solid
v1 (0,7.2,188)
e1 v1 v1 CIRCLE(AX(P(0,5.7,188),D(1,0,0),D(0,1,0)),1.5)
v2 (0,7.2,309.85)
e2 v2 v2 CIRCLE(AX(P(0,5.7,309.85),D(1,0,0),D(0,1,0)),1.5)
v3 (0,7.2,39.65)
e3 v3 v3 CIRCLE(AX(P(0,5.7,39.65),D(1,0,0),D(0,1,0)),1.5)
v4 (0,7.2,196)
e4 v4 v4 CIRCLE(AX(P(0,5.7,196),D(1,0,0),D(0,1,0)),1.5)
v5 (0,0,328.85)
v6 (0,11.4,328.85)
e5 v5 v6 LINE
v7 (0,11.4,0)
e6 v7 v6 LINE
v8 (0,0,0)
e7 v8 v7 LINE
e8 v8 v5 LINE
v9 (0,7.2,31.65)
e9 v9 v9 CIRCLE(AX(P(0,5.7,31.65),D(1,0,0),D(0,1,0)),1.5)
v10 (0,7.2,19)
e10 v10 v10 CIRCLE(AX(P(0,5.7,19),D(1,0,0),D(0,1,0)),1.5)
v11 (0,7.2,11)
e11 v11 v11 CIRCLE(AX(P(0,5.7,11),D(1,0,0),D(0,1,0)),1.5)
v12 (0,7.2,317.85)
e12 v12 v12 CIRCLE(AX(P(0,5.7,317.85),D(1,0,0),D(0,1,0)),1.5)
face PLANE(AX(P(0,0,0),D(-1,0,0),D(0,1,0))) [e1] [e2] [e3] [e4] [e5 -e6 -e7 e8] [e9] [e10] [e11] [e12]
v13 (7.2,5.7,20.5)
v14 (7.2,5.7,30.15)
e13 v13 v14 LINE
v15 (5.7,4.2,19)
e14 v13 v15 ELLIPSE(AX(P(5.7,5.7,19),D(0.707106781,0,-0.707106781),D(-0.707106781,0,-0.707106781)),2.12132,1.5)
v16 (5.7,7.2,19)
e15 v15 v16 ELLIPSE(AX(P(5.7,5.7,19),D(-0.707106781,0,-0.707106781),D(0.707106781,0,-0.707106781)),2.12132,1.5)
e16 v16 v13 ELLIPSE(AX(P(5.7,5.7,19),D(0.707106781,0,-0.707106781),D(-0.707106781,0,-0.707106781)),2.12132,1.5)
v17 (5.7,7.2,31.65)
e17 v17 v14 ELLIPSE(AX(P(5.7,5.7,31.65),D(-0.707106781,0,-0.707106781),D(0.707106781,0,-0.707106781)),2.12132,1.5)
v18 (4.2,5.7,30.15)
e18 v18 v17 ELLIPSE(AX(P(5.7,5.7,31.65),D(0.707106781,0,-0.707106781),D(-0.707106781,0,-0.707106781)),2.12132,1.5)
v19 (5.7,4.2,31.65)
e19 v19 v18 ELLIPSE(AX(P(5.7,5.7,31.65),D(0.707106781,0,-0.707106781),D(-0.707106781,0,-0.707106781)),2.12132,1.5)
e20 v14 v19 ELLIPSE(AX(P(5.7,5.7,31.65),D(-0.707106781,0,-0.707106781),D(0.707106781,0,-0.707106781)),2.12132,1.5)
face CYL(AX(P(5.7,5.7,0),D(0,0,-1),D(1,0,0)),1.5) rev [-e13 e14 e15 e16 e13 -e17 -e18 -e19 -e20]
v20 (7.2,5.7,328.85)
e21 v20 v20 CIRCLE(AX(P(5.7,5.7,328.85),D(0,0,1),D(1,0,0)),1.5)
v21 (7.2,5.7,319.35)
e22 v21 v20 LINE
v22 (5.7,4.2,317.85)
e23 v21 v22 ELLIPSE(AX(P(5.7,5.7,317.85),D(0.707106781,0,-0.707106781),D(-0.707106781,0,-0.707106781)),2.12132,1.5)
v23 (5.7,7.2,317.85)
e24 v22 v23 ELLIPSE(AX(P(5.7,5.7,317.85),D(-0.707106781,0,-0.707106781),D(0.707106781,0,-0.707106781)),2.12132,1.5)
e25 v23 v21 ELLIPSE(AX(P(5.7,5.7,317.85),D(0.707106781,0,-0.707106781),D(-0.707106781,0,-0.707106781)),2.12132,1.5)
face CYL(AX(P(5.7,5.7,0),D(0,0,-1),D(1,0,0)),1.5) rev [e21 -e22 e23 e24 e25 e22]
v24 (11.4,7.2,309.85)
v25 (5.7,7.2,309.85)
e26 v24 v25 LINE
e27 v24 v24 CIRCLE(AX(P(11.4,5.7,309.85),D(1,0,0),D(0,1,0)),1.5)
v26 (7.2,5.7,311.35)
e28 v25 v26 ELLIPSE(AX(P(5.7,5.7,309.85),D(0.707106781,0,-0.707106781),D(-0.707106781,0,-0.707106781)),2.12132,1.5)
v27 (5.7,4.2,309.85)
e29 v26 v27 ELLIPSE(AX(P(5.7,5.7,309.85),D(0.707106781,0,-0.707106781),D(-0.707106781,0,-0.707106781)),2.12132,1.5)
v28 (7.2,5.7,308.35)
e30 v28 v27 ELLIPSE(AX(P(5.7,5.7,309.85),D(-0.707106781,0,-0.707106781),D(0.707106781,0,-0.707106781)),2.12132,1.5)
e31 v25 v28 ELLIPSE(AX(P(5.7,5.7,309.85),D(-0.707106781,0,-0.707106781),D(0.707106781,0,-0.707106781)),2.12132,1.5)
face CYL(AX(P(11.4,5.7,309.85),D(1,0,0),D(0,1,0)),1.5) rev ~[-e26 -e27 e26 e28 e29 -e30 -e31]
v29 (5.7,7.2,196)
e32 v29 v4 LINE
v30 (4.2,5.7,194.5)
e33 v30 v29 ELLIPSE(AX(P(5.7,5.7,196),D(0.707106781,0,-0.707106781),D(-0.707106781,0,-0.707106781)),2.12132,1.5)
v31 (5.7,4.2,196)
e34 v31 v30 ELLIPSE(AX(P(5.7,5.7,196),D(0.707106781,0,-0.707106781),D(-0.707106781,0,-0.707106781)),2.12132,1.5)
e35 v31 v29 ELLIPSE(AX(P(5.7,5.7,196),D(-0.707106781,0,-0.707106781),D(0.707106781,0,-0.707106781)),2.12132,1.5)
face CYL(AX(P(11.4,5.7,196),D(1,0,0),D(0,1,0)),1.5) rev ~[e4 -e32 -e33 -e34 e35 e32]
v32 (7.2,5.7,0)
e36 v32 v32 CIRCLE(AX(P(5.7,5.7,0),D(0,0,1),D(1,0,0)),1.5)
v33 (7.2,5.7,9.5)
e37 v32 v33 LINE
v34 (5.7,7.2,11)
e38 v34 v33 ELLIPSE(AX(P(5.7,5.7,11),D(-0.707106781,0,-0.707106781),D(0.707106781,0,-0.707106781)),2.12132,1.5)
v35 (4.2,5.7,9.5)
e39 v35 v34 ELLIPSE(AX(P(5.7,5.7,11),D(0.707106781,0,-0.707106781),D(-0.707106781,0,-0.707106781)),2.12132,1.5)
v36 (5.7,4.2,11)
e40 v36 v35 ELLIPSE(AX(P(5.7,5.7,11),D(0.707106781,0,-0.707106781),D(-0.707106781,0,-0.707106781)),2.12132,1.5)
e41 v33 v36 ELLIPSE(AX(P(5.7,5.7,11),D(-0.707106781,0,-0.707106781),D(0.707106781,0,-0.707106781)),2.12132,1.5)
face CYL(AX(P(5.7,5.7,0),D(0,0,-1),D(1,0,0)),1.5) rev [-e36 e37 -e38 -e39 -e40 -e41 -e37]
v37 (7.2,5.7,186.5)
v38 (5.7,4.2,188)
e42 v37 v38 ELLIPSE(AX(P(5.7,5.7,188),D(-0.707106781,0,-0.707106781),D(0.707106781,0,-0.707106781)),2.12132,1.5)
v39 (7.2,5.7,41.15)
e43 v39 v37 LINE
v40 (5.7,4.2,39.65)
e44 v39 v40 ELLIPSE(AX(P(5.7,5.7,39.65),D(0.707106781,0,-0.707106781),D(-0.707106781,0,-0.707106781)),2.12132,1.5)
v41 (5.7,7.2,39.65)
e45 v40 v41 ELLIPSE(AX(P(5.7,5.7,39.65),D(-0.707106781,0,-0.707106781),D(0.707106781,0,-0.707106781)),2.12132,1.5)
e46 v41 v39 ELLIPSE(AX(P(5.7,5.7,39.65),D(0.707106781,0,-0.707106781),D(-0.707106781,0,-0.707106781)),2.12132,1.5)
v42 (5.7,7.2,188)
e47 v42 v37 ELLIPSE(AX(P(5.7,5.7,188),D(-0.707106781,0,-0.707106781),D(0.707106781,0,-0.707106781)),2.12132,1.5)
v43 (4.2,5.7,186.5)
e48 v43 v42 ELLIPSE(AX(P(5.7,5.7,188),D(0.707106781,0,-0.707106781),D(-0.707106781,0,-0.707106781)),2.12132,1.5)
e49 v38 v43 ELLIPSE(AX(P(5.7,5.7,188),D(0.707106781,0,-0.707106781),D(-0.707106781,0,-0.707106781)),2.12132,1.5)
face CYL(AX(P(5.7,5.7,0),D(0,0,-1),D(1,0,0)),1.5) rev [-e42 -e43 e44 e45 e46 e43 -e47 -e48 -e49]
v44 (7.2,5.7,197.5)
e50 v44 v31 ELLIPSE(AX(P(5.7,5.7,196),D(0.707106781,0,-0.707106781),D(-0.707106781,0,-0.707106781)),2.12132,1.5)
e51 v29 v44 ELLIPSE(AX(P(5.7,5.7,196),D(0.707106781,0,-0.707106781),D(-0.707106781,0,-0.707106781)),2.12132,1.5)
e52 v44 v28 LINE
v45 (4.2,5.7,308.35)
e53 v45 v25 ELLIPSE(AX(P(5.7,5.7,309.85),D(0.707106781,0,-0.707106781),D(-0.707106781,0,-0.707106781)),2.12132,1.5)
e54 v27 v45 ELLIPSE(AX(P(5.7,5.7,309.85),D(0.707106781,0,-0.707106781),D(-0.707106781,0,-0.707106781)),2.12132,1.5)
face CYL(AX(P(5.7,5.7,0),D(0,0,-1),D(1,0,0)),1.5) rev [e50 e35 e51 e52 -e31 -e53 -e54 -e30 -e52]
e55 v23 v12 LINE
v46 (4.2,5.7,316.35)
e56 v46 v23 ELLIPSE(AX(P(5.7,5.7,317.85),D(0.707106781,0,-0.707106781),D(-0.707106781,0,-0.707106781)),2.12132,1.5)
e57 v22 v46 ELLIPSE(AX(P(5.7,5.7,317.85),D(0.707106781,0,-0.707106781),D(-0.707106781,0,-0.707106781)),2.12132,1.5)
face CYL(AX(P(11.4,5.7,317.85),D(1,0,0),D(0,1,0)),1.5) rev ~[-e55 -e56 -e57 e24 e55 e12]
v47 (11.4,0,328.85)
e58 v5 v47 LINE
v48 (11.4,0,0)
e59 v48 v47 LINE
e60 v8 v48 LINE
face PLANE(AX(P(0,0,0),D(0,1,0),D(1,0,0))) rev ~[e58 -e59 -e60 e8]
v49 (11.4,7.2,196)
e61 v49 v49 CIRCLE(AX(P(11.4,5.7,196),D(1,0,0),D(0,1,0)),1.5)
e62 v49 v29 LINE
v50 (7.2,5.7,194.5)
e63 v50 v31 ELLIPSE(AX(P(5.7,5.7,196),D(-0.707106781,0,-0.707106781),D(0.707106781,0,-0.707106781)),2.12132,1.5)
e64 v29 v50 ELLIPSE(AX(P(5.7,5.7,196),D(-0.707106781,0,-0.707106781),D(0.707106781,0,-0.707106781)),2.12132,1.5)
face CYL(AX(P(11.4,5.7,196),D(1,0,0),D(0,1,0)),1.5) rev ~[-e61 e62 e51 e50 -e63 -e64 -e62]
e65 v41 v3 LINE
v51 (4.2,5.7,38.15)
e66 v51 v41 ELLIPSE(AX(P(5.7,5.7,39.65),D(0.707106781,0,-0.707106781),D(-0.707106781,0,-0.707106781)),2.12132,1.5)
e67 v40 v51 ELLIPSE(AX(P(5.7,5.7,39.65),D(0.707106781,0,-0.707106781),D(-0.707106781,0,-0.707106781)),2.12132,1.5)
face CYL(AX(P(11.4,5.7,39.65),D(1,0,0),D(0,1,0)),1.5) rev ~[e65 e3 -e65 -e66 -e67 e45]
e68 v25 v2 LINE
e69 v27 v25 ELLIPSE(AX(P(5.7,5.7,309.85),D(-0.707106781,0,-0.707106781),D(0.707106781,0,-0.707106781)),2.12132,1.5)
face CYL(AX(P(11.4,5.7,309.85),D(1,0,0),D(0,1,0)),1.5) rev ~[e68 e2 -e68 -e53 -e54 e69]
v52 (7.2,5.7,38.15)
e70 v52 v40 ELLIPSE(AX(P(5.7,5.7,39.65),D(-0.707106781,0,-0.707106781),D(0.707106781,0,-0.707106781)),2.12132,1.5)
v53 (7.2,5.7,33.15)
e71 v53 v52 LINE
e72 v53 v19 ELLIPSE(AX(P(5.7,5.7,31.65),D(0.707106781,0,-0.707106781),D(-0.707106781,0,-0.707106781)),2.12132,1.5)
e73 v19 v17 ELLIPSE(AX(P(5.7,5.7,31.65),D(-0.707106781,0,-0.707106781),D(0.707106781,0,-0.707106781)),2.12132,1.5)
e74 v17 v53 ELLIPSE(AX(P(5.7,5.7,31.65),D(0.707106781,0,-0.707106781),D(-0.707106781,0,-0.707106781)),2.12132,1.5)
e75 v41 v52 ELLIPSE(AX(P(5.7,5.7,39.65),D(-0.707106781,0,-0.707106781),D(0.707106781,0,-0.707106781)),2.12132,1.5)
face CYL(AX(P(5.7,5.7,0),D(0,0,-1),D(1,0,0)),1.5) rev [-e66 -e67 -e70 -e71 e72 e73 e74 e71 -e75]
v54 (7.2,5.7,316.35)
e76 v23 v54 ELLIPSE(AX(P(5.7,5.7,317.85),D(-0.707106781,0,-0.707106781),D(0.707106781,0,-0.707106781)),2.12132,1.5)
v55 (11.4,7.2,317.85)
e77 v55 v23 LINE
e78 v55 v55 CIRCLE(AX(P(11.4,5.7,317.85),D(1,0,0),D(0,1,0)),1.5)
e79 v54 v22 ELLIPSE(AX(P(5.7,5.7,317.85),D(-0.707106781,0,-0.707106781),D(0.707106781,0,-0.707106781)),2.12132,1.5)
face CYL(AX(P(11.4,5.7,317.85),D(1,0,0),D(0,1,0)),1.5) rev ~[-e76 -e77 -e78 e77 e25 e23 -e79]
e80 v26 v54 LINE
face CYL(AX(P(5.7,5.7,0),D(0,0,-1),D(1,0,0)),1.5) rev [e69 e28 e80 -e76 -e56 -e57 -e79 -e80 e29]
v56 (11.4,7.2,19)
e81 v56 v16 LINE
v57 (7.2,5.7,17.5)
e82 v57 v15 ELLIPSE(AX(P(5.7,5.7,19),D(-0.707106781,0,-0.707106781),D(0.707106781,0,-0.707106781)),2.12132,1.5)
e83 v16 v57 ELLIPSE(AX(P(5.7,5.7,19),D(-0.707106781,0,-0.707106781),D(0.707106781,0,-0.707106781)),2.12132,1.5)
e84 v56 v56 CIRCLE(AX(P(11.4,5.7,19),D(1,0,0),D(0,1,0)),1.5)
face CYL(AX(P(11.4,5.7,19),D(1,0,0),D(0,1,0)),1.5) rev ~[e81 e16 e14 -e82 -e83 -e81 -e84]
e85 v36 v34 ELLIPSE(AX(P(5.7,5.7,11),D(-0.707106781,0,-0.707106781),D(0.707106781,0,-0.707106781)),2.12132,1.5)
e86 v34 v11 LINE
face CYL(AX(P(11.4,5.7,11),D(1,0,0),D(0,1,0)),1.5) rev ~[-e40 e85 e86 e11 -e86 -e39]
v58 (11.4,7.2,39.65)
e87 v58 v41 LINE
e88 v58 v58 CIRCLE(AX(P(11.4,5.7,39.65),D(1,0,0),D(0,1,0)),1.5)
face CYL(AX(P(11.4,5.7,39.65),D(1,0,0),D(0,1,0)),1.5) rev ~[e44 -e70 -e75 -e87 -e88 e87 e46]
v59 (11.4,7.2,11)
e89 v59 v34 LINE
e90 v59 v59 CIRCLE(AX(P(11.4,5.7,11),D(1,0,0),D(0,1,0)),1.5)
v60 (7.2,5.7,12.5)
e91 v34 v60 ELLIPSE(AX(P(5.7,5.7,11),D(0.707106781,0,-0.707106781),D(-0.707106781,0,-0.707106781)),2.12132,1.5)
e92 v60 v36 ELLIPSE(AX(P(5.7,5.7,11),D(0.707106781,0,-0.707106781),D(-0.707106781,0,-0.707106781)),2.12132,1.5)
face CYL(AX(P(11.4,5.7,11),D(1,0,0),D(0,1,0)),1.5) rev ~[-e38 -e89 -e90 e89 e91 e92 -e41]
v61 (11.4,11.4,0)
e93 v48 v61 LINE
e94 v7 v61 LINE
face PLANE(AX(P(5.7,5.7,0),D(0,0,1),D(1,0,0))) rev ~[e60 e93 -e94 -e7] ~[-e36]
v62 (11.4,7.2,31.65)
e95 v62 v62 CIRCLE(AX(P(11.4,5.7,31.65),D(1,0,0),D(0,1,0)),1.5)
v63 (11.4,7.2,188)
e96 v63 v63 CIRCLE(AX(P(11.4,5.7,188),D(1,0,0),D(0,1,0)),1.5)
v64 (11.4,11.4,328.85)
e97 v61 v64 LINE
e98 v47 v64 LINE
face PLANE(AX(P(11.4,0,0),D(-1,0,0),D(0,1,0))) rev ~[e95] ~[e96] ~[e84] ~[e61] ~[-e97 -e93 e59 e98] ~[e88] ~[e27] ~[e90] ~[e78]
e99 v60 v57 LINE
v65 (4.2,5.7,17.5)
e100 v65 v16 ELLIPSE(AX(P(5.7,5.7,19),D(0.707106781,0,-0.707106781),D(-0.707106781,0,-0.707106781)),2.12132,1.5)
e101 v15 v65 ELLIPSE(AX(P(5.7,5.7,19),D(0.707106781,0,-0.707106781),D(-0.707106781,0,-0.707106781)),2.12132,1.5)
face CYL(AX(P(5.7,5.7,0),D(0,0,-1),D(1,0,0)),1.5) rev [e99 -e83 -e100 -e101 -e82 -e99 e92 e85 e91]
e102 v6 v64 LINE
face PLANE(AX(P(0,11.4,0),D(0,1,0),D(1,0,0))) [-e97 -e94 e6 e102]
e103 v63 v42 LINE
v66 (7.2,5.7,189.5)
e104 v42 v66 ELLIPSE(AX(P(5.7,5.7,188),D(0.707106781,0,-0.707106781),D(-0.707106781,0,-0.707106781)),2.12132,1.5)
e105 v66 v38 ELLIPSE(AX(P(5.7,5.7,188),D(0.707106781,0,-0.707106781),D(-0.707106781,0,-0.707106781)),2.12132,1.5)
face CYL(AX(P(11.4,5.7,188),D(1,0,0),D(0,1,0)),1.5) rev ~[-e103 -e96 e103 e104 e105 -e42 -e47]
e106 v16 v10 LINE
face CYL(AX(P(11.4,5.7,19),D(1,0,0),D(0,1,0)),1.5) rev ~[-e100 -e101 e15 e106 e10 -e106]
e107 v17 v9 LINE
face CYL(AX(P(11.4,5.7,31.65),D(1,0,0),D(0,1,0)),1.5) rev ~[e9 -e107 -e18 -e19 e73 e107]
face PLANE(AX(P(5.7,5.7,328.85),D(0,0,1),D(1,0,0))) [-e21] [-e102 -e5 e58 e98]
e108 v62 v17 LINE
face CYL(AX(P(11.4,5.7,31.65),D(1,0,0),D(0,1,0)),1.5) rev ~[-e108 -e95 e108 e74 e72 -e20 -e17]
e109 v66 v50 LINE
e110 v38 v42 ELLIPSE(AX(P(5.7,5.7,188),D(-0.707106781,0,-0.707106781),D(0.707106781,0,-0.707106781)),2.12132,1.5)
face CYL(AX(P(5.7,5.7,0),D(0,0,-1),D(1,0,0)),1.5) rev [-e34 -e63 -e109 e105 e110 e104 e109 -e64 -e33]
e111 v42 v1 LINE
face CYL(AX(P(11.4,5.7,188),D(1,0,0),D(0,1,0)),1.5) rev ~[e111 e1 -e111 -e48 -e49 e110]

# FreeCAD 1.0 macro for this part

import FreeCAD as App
import Part
import Sketcher
Q = App.Units.Quantity


def add_polygon(sketch, points):
    """Adds a closed chain of lines whose ends are joined by coincident constraints."""
    first, n = sketch.GeometryCount, len(points)
    for a, b in zip(points, points[1:] + points[:1]):
        sketch.addGeometry(Part.LineSegment(App.Vector(*a, 0), App.Vector(*b, 0)), False)
    for i in range(n):
        sketch.addConstraint(Sketcher.Constraint("Coincident", first + i, 2, first + (i + 1) % n, 1))

doc = App.newDocument("Part")
body = doc.addObject("PartDesign::Body", "Body")

sketch1 = body.newObject("Sketcher::SketchObject", "Sketch")
sketch1.AttachmentSupport = (doc.getObject("XY_Plane"), [""])
sketch1.MapMode = "FlatFace"
add_polygon(sketch1, [(0, 11.4), (0, 0), (11.4, 0), (11.4, 11.4)])
sketch1.addGeometry(Part.Circle(App.Vector(5.7, 5.7, 0), App.Vector(0, 0, 1), 1.5), False)
sketch1.addConstraint(Sketcher.Constraint("Vertical", 0))
sketch1.addConstraint(Sketcher.Constraint("Horizontal", 1))
sketch1.addConstraint(Sketcher.Constraint("Vertical", 2))
sketch1.addConstraint(Sketcher.Constraint("Horizontal", 3))
sketch1.addConstraint(Sketcher.Constraint("Coincident", 0, 2, -1, 1))
sketch1.addConstraint(Sketcher.Constraint("Equal", 3, 0))
sketch1.addConstraint(Sketcher.Constraint("Diameter", 4, Q("3 mm")))
sketch1.addConstraint(Sketcher.Constraint("DistanceX", 1, 1, 1, 2, Q("11.4 mm")))
sketch1.addConstraint(Sketcher.Constraint("DistanceX", -1, 1, 4, 3, Q("5.7 mm")))
sketch1.addConstraint(Sketcher.Constraint("DistanceY", -1, 1, 4, 3, Q("5.7 mm")))
pad1 = body.newObject("PartDesign::Pad", "Pad")
pad1.Profile = sketch1
pad1.Length = 328.85

sketch2 = body.newObject("Sketcher::SketchObject", "Sketch001")
sketch2.AttachmentSupport = (doc.getObject("YZ_Plane"), [""])
sketch2.MapMode = "FlatFace"
sketch2.AttachmentOffset = App.Placement(App.Vector(0, 0, 11.4), App.Rotation())
sketch2.addGeometry(Part.Circle(App.Vector(5.7, 39.6, 0), App.Vector(0, 0, 1), 1.5), False)
sketch2.addGeometry(Part.Circle(App.Vector(5.7, 31.6, 0), App.Vector(0, 0, 1), 1.5), False)
sketch2.addGeometry(Part.Circle(App.Vector(5.7, 19, 0), App.Vector(0, 0, 1), 1.5), False)
sketch2.addGeometry(Part.Circle(App.Vector(5.7, 11, 0), App.Vector(0, 0, 1), 1.5), False)
sketch2.addGeometry(Part.Circle(App.Vector(5.7, 196, 0), App.Vector(0, 0, 1), 1.5), False)
sketch2.addGeometry(Part.Circle(App.Vector(5.7, 188, 0), App.Vector(0, 0, 1), 1.5), False)
sketch2.addGeometry(Part.Circle(App.Vector(5.7, 317.9, 0), App.Vector(0, 0, 1), 1.5), False)
sketch2.addGeometry(Part.Circle(App.Vector(5.7, 309.9, 0), App.Vector(0, 0, 1), 1.5), False)
sketch2.addConstraint(Sketcher.Constraint("Equal", 0, 1))
sketch2.addConstraint(Sketcher.Constraint("Equal", 1, 2))
sketch2.addConstraint(Sketcher.Constraint("Equal", 2, 3))
sketch2.addConstraint(Sketcher.Constraint("Equal", 3, 4))
sketch2.addConstraint(Sketcher.Constraint("Equal", 4, 5))
sketch2.addConstraint(Sketcher.Constraint("Equal", 5, 6))
sketch2.addConstraint(Sketcher.Constraint("Equal", 6, 7))
sketch2.addConstraint(Sketcher.Constraint("Vertical", 0, 3, 1, 3))
sketch2.addConstraint(Sketcher.Constraint("Vertical", 1, 3, 2, 3))
sketch2.addConstraint(Sketcher.Constraint("Vertical", 2, 3, 3, 3))
sketch2.addConstraint(Sketcher.Constraint("Vertical", 3, 3, 4, 3))
sketch2.addConstraint(Sketcher.Constraint("Vertical", 4, 3, 5, 3))
sketch2.addConstraint(Sketcher.Constraint("Vertical", 5, 3, 6, 3))
sketch2.addConstraint(Sketcher.Constraint("Vertical", 6, 3, 7, 3))
sketch2.addConstraint(Sketcher.Constraint("Diameter", 0, Q("3 mm")))
sketch2.addConstraint(Sketcher.Constraint("DistanceY", -1, 1, 2, 3, Q("19 mm")))
sketch2.addConstraint(Sketcher.Constraint("DistanceY", -1, 1, 3, 3, Q("11 mm")))
sketch2.addConstraint(Sketcher.Constraint("DistanceY", -1, 1, 4, 3, Q("196 mm")))
sketch2.addConstraint(Sketcher.Constraint("DistanceY", -1, 1, 5, 3, Q("188 mm")))
sketch2.addConstraint(Sketcher.Constraint("DistanceY", 1, 3, 0, 3, Q("8 mm")))
sketch2.addConstraint(Sketcher.Constraint("DistanceY", 7, 3, 6, 3, Q("8 mm")))
sketch2.addConstraint(Sketcher.Constraint("DistanceX", -1, 1, 0, 3, Q("5.7 mm")))
sketch2.addConstraint(Sketcher.Constraint("DistanceY", 0, 3, 6, 3, Q("278.2 mm")))
sketch2.addConstraint(Sketcher.Constraint("DistanceY", -1, 1, 0, 3, Q("39.65 mm")))
pocket1 = body.newObject("PartDesign::Pocket", "Pocket")
pocket1.Profile = sketch2
pocket1.Type = "ThroughAll"

doc.recompute()
